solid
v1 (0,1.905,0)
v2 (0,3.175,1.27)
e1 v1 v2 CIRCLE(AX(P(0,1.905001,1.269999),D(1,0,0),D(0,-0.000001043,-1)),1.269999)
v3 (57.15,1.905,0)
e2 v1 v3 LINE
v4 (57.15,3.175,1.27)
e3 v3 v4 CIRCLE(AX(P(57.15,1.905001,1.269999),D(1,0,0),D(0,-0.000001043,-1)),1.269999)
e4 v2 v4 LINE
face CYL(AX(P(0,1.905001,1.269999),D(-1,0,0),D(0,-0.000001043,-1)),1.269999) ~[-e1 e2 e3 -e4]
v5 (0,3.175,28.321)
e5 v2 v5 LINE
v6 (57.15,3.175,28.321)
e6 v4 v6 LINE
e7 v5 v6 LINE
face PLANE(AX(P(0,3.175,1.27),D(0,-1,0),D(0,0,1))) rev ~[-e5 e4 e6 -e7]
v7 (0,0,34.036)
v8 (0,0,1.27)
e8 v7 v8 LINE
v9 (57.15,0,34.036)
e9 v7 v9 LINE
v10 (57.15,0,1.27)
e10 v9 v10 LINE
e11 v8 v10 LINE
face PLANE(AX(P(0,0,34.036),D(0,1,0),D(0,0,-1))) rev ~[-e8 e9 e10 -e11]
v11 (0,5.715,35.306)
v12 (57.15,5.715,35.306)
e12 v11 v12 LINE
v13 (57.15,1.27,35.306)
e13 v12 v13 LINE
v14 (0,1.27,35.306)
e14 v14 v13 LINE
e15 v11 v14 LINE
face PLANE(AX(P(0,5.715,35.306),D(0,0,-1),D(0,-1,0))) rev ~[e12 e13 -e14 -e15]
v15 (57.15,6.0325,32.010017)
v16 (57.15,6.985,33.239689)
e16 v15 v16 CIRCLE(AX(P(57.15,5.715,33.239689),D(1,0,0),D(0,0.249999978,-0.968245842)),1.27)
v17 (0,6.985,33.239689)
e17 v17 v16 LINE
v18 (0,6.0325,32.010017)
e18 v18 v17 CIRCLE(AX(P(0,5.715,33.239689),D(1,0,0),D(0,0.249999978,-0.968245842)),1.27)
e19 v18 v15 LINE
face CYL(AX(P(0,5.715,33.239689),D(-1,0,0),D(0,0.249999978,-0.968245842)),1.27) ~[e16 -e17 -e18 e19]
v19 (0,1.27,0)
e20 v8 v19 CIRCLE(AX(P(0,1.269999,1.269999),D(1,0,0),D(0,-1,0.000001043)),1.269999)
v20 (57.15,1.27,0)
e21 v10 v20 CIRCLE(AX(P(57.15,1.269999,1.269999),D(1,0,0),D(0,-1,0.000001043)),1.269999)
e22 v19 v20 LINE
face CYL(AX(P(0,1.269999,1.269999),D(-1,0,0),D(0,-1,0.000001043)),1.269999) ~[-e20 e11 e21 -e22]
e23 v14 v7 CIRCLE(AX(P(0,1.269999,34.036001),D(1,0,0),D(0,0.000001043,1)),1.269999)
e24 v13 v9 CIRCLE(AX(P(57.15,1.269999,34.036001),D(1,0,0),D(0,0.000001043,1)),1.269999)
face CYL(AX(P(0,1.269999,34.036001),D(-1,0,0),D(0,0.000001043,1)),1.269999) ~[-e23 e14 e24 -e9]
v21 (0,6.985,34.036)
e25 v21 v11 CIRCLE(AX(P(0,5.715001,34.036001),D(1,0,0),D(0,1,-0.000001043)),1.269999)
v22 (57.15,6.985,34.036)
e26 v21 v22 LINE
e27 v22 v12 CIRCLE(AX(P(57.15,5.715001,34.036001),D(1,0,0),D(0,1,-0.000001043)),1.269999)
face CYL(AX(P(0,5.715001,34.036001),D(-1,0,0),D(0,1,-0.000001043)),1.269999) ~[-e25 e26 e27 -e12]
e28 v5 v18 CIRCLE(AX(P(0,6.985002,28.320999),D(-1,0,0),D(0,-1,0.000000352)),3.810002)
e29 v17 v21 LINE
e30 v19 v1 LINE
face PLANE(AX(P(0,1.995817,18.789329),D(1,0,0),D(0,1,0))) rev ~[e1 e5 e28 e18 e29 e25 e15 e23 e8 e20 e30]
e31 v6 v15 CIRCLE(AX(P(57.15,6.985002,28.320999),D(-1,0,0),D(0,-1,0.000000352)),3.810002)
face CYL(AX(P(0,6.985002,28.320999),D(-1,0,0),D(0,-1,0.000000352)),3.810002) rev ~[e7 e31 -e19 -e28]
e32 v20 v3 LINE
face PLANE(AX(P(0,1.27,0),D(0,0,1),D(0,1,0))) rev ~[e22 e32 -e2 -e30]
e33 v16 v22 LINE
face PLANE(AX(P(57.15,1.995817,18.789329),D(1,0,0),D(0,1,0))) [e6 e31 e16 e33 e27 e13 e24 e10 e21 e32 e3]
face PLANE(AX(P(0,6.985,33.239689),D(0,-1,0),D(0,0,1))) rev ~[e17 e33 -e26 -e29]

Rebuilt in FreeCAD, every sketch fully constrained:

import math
import FreeCAD as App
import Part
import Sketcher
from FreeCAD import Vector
Q = App.Units.Quantity

doc = App.newDocument("Part")
params = doc.addObject("Spreadsheet::Sheet", "Params")
for row, (alias, value) in enumerate([
    ("sketch1_radius", "0.0499999 in"),
    ("sketch1_radius2", "0.1500001 in"),
    ("sketch1_height", "1.29 in"),
    ("sketch1_width", "0.025 in"),
    ("sketch1_height2", "1.065 in"),
    ("pad1_length", "2.25 in"),
], start=1):
    params.set(f"A{row}", alias)
    params.set(f"B{row}", "=" + value)
    params.setAlias(f"B{row}", alias)

body = doc.addObject("PartDesign::Body", "Body")

# Sketch on YZ plane
sketch1 = body.newObject("Sketcher::SketchObject", "Sketch")
sketch1.AttachmentSupport = (doc.getObject("YZ_Plane"), [""])
sketch1.MapMode = "FlatFace"
sketch1.addGeometry([
    Part.ArcOfCircle(Part.Circle(Vector(1.3, 1.3, 0), Vector(0, 0, 1), 1.3), math.radians(180), math.radians(270)),  # 0
    Part.LineSegment(Vector(1.3, 0, 0), Vector(1.9, 0, 0)),  # 1
    Part.ArcOfCircle(Part.Circle(Vector(1.9, 1.3, 0), Vector(0, 0, 1), 1.3), math.radians(-90), math.radians(0)),  # 2
    Part.LineSegment(Vector(3.2, 1.3, 0), Vector(3.2, 28.3, 0)),  # 3
    Part.ArcOfCircle(Part.Circle(Vector(7, 28.3, 0), Vector(0, 0, 1), 3.8), math.radians(104), math.radians(180)),  # 4
    Part.ArcOfCircle(Part.Circle(Vector(5.7, 33.2, 0), Vector(0, 0, 1), 1.3), math.radians(-76), math.radians(0)),  # 5
    Part.LineSegment(Vector(7, 33.2, 0), Vector(7, 34, 0)),  # 6
    Part.ArcOfCircle(Part.Circle(Vector(5.7, 34, 0), Vector(0, 0, 1), 1.3), math.radians(0), math.radians(90)),  # 7
    Part.LineSegment(Vector(5.7, 35.3, 0), Vector(1.3, 35.3, 0)),  # 8
    Part.ArcOfCircle(Part.Circle(Vector(1.3, 34, 0), Vector(0, 0, 1), 1.3), math.radians(90), math.radians(180)),  # 9
    Part.LineSegment(Vector(0, 34, 0), Vector(0, 1.3, 0)),  # 10
], False)
sketch1.addConstraint([
    Sketcher.Constraint("Tangent", 0, 2, 1, 1),
    Sketcher.Constraint("Tangent", 1, 2, 2, 1),
    Sketcher.Constraint("Tangent", 2, 2, 3, 1),
    Sketcher.Constraint("Tangent", 3, 2, 4, 2),
    Sketcher.Constraint("Tangent", 4, 1, 5, 1),
    Sketcher.Constraint("Tangent", 5, 2, 6, 1),
    Sketcher.Constraint("Tangent", 6, 2, 7, 1),
    Sketcher.Constraint("Tangent", 7, 2, 8, 1),
    Sketcher.Constraint("Tangent", 8, 2, 9, 1),
    Sketcher.Constraint("Tangent", 9, 2, 10, 1),
    Sketcher.Constraint("Tangent", 10, 2, 0, 1),
    Sketcher.Constraint("Horizontal", 1),
    Sketcher.Constraint("Vertical", 3),
    Sketcher.Constraint("Vertical", 6),
    Sketcher.Constraint("Horizontal", 8),
    Sketcher.Constraint("Vertical", 10),
    Sketcher.Constraint("Equal", 0, 2),
    Sketcher.Constraint("Equal", 2, 5),
    Sketcher.Constraint("Equal", 5, 7),
    Sketcher.Constraint("Equal", 7, 9),
    Sketcher.Constraint("PointOnObject", 0, 2, -1),
    Sketcher.Constraint("PointOnObject", 9, 2, -2),
    Sketcher.Constraint("Radius", 0, Q("0.0499999 in")),
    Sketcher.Constraint("Radius", 4, Q("0.1500001 in")),
    Sketcher.Constraint("DistanceY", 10, 2, 10, 1, Q("1.29 in")),
    Sketcher.Constraint("DistanceX", 3, 2, 5, 3, Q("0.1 in")),
    Sketcher.Constraint("DistanceX", 1, 1, 1, 2, Q("0.025 in")),
    Sketcher.Constraint("DistanceY", 3, 1, 3, 2, Q("1.065 in")),
])
sketch1.setExpression("Constraints[22]", "Params.sketch1_radius")
sketch1.setExpression("Constraints[23]", "Params.sketch1_radius2")
sketch1.setExpression("Constraints[24]", "Params.sketch1_height")
sketch1.setExpression("Constraints[26]", "Params.sketch1_width")
sketch1.setExpression("Constraints[27]", "Params.sketch1_height2")
pad1 = body.newObject("PartDesign::Pad", "Pad")
pad1.Profile = sketch1
pad1.setExpression("Length", "Params.pad1_length")

doc.recompute()
